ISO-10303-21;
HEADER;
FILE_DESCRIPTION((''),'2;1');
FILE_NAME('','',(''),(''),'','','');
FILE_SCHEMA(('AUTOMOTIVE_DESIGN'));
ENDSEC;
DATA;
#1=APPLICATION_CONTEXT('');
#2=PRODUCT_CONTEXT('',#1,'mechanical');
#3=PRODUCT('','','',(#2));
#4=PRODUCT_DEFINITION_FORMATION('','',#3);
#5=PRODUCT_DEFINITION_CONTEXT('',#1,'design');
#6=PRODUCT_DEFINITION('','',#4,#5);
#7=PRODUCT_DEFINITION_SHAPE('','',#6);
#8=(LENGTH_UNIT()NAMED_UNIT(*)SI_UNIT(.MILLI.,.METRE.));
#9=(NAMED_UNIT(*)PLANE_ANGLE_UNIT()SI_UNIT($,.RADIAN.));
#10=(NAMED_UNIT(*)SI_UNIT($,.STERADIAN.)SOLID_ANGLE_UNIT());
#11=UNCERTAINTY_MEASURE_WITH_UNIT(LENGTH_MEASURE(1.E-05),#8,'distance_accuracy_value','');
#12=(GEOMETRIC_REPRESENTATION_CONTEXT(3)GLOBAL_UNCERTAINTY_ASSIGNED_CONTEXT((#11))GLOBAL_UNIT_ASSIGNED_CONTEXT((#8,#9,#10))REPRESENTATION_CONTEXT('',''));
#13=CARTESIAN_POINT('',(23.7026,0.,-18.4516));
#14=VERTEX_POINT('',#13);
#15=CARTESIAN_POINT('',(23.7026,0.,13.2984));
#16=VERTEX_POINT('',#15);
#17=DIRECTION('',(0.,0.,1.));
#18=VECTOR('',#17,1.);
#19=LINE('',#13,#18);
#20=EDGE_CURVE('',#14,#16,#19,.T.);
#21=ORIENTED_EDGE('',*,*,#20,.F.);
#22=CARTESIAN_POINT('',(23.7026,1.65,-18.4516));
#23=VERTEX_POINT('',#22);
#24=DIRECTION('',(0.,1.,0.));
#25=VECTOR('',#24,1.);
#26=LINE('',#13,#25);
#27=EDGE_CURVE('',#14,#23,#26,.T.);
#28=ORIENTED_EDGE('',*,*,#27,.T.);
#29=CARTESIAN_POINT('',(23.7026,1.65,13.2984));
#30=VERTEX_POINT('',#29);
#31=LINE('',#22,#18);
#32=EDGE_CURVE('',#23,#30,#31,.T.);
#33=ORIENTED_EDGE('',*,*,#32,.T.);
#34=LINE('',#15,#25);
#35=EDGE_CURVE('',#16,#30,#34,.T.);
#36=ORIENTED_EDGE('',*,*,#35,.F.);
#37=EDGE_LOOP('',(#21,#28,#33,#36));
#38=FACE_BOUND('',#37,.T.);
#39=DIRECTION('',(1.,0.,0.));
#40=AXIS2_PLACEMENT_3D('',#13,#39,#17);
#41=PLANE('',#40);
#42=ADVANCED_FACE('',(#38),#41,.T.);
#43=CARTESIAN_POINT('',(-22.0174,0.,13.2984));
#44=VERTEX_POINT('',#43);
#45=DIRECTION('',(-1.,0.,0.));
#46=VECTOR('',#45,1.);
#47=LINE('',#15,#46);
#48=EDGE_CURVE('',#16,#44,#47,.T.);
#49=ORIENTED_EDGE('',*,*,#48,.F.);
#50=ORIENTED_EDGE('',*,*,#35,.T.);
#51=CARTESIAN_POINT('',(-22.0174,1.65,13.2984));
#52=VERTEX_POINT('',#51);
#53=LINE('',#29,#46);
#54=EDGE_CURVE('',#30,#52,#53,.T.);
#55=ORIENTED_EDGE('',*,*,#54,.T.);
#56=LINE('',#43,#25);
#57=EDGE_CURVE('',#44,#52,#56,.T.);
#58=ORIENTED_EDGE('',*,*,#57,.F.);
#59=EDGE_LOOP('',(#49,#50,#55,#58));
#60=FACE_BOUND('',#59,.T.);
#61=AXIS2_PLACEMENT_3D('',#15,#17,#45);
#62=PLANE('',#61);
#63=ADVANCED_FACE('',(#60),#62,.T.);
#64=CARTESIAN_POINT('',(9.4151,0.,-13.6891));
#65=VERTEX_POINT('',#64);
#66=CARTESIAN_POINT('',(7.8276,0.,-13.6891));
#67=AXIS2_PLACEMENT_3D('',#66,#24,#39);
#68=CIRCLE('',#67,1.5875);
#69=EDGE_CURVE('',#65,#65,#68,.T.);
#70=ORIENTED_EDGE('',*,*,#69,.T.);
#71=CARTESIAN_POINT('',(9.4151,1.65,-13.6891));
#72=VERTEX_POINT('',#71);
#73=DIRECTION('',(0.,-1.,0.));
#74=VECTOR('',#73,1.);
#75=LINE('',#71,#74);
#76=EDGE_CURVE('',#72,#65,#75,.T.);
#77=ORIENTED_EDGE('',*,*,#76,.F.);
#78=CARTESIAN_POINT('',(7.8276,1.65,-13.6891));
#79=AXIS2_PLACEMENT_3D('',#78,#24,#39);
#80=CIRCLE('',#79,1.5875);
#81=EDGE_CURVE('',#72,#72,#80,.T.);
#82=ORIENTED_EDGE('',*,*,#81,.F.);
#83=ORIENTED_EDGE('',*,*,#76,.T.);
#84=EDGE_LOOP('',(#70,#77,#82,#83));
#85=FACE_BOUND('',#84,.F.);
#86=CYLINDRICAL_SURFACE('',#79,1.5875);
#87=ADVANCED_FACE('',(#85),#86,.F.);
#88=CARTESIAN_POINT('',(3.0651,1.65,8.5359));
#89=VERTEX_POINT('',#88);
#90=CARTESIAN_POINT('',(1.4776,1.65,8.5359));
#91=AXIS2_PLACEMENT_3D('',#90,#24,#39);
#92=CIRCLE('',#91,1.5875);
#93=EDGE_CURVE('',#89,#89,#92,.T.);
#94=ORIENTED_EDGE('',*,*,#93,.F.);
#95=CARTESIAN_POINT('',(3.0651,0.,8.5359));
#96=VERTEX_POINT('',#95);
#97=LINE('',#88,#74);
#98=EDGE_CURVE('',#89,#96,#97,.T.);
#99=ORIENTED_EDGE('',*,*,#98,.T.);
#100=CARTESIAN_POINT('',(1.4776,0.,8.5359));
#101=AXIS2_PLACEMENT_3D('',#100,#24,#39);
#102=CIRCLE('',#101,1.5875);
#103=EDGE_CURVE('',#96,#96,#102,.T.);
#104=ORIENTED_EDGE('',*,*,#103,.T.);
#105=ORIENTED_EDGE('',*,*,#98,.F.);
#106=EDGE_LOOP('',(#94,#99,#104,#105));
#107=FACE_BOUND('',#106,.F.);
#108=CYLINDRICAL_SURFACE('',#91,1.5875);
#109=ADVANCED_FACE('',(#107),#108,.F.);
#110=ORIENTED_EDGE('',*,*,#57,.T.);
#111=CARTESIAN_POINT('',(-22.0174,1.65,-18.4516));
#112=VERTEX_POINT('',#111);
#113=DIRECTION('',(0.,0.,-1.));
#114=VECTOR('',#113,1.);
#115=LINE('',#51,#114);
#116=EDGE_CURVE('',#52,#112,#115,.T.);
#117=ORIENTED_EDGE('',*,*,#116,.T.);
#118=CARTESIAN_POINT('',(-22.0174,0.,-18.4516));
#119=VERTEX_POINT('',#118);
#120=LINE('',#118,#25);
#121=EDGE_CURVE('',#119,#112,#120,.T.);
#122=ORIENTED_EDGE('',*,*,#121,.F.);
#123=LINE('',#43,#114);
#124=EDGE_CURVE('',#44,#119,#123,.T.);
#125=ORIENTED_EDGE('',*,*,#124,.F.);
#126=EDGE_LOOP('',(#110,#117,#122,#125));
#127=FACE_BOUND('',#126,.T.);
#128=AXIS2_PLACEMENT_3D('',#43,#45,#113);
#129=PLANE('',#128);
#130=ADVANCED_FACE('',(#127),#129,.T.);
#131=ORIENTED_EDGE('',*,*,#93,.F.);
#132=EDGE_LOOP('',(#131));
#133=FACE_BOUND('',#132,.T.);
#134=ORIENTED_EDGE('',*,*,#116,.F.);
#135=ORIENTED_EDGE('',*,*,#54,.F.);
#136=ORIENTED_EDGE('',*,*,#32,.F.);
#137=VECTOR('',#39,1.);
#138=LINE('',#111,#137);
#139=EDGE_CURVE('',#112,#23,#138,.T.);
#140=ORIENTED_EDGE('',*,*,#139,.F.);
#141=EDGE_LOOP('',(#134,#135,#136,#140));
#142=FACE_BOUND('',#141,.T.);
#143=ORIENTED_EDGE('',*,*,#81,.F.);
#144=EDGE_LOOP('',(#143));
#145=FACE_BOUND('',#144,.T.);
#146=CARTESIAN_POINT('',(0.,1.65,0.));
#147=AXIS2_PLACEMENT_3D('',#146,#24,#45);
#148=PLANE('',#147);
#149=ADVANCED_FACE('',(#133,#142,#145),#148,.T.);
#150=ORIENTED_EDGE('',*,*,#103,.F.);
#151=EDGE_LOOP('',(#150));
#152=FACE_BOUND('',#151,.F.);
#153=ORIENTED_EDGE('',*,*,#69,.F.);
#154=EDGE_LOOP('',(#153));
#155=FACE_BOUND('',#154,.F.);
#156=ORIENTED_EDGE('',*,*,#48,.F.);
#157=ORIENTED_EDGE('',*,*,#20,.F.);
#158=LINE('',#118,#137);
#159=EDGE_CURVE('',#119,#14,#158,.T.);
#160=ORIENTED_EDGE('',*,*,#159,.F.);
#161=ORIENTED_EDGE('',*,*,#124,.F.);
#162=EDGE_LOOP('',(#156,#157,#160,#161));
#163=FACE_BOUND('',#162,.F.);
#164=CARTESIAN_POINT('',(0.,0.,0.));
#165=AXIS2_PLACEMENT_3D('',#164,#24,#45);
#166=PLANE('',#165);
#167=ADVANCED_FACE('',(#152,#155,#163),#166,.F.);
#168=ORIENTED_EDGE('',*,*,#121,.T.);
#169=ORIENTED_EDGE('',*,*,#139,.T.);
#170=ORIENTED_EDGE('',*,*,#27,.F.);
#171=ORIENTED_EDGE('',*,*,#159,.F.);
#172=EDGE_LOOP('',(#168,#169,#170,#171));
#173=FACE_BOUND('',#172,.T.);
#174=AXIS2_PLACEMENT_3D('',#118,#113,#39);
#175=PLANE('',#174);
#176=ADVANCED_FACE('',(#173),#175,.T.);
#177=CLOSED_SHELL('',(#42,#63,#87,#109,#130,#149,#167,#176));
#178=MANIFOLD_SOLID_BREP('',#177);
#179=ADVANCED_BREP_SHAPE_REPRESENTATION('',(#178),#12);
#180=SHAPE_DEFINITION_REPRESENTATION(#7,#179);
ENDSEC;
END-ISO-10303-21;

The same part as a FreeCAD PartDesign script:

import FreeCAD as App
import Part
import Sketcher
Q = App.Units.Quantity

doc = App.newDocument("Part")
params = doc.addObject("Spreadsheet::Sheet", "Params")
for row, (alias, value) in enumerate([
    ("sketch1_width", "1.8 in"),
    ("sketch1_height", "1.25 in"),
    ("pad1_length", "1.65 mm"),
    ("sketch2_diameter", "0.125 in"),
], start=1):
    params.set(f"A{row}", alias)
    params.set(f"B{row}", "=" + value)
    params.setAlias(f"B{row}", alias)

body = doc.addObject("PartDesign::Body", "Body")

# Sketch on XZ plane
sketch1 = body.newObject("Sketcher::SketchObject", "Sketch")
sketch1.AttachmentSupport = (doc.getObject("XZ_Plane"), [""])
sketch1.MapMode = "FlatFace"
sketch1.addGeometry([
    Part.LineSegment(App.Vector(-22.0174, 13.2984, 0), App.Vector(23.7026, 13.2984, 0)),
    Part.LineSegment(App.Vector(23.7026, 13.2984, 0), App.Vector(23.7026, -18.4516, 0)),
    Part.LineSegment(App.Vector(23.7026, -18.4516, 0), App.Vector(-22.0174, -18.4516, 0)),
    Part.LineSegment(App.Vector(-22.0174, -18.4516, 0), App.Vector(-22.0174, 13.2984, 0)),
], False)
sketch1.addConstraint([
    Sketcher.Constraint("Coincident", 0, 2, 1, 1),
    Sketcher.Constraint("Coincident", 1, 2, 2, 1),
    Sketcher.Constraint("Coincident", 2, 2, 3, 1),
    Sketcher.Constraint("Coincident", 3, 2, 0, 1),
    Sketcher.Constraint("Horizontal", 0),
    Sketcher.Constraint("Vertical", 1),
    Sketcher.Constraint("Horizontal", 2),
    Sketcher.Constraint("Vertical", 3),
    Sketcher.Constraint("DistanceX", 0, 1, 0, 2, Q("1.8 in")),
    Sketcher.Constraint("DistanceY", 1, 2, 1, 1, Q("1.25 in")),
    Sketcher.Constraint("DistanceX", -1, 1, 0, 2, 23.7026),
    Sketcher.Constraint("DistanceY", -1, 1, 0, 2, 13.2984),
])
sketch1.setExpression("Constraints[8]", "Params.sketch1_width")
sketch1.setExpression("Constraints[9]", "Params.sketch1_height")
pad1 = body.newObject("PartDesign::Pad", "Pad")
pad1.Profile = sketch1
pad1.setExpression("Length", "Params.pad1_length")
pad1.Reversed = True

# Sketch on XZ plane
sketch2 = body.newObject("Sketcher::SketchObject", "Sketch001")
sketch2.AttachmentSupport = (doc.getObject("XZ_Plane"), [""])
sketch2.MapMode = "FlatFace"
sketch2.AttachmentOffset = App.Placement(App.Vector(0, 0, -1.65), App.Rotation())
sketch2.addGeometry([
    Part.Circle(App.Vector(1.4776, 8.5359, 0), App.Vector(0, 0, 1), 1.5875),
    Part.Circle(App.Vector(7.8276, -13.6891, 0), App.Vector(0, 0, 1), 1.5875),
], False)
sketch2.addConstraint([
    Sketcher.Constraint("Equal", 0, 1),
    Sketcher.Constraint("Diameter", 0, Q("0.125 in")),
    Sketcher.Constraint("DistanceY", 1, 3, 0, 3, Q("0.875 in")),
    Sketcher.Constraint("DistanceX", 0, 3, 1, 3, Q("0.25 in")),
    Sketcher.Constraint("DistanceX", -1, 1, 0, 3, 1.4776),
    Sketcher.Constraint("DistanceY", -1, 1, 0, 3, 8.536),
])
sketch2.setExpression("Constraints[1]", "Params.sketch2_diameter")
pocket1 = body.newObject("PartDesign::Pocket", "Pocket")
pocket1.Profile = sketch2
pocket1.Type = "UpToFirst"
pocket1.Reversed = True

doc.recompute()
